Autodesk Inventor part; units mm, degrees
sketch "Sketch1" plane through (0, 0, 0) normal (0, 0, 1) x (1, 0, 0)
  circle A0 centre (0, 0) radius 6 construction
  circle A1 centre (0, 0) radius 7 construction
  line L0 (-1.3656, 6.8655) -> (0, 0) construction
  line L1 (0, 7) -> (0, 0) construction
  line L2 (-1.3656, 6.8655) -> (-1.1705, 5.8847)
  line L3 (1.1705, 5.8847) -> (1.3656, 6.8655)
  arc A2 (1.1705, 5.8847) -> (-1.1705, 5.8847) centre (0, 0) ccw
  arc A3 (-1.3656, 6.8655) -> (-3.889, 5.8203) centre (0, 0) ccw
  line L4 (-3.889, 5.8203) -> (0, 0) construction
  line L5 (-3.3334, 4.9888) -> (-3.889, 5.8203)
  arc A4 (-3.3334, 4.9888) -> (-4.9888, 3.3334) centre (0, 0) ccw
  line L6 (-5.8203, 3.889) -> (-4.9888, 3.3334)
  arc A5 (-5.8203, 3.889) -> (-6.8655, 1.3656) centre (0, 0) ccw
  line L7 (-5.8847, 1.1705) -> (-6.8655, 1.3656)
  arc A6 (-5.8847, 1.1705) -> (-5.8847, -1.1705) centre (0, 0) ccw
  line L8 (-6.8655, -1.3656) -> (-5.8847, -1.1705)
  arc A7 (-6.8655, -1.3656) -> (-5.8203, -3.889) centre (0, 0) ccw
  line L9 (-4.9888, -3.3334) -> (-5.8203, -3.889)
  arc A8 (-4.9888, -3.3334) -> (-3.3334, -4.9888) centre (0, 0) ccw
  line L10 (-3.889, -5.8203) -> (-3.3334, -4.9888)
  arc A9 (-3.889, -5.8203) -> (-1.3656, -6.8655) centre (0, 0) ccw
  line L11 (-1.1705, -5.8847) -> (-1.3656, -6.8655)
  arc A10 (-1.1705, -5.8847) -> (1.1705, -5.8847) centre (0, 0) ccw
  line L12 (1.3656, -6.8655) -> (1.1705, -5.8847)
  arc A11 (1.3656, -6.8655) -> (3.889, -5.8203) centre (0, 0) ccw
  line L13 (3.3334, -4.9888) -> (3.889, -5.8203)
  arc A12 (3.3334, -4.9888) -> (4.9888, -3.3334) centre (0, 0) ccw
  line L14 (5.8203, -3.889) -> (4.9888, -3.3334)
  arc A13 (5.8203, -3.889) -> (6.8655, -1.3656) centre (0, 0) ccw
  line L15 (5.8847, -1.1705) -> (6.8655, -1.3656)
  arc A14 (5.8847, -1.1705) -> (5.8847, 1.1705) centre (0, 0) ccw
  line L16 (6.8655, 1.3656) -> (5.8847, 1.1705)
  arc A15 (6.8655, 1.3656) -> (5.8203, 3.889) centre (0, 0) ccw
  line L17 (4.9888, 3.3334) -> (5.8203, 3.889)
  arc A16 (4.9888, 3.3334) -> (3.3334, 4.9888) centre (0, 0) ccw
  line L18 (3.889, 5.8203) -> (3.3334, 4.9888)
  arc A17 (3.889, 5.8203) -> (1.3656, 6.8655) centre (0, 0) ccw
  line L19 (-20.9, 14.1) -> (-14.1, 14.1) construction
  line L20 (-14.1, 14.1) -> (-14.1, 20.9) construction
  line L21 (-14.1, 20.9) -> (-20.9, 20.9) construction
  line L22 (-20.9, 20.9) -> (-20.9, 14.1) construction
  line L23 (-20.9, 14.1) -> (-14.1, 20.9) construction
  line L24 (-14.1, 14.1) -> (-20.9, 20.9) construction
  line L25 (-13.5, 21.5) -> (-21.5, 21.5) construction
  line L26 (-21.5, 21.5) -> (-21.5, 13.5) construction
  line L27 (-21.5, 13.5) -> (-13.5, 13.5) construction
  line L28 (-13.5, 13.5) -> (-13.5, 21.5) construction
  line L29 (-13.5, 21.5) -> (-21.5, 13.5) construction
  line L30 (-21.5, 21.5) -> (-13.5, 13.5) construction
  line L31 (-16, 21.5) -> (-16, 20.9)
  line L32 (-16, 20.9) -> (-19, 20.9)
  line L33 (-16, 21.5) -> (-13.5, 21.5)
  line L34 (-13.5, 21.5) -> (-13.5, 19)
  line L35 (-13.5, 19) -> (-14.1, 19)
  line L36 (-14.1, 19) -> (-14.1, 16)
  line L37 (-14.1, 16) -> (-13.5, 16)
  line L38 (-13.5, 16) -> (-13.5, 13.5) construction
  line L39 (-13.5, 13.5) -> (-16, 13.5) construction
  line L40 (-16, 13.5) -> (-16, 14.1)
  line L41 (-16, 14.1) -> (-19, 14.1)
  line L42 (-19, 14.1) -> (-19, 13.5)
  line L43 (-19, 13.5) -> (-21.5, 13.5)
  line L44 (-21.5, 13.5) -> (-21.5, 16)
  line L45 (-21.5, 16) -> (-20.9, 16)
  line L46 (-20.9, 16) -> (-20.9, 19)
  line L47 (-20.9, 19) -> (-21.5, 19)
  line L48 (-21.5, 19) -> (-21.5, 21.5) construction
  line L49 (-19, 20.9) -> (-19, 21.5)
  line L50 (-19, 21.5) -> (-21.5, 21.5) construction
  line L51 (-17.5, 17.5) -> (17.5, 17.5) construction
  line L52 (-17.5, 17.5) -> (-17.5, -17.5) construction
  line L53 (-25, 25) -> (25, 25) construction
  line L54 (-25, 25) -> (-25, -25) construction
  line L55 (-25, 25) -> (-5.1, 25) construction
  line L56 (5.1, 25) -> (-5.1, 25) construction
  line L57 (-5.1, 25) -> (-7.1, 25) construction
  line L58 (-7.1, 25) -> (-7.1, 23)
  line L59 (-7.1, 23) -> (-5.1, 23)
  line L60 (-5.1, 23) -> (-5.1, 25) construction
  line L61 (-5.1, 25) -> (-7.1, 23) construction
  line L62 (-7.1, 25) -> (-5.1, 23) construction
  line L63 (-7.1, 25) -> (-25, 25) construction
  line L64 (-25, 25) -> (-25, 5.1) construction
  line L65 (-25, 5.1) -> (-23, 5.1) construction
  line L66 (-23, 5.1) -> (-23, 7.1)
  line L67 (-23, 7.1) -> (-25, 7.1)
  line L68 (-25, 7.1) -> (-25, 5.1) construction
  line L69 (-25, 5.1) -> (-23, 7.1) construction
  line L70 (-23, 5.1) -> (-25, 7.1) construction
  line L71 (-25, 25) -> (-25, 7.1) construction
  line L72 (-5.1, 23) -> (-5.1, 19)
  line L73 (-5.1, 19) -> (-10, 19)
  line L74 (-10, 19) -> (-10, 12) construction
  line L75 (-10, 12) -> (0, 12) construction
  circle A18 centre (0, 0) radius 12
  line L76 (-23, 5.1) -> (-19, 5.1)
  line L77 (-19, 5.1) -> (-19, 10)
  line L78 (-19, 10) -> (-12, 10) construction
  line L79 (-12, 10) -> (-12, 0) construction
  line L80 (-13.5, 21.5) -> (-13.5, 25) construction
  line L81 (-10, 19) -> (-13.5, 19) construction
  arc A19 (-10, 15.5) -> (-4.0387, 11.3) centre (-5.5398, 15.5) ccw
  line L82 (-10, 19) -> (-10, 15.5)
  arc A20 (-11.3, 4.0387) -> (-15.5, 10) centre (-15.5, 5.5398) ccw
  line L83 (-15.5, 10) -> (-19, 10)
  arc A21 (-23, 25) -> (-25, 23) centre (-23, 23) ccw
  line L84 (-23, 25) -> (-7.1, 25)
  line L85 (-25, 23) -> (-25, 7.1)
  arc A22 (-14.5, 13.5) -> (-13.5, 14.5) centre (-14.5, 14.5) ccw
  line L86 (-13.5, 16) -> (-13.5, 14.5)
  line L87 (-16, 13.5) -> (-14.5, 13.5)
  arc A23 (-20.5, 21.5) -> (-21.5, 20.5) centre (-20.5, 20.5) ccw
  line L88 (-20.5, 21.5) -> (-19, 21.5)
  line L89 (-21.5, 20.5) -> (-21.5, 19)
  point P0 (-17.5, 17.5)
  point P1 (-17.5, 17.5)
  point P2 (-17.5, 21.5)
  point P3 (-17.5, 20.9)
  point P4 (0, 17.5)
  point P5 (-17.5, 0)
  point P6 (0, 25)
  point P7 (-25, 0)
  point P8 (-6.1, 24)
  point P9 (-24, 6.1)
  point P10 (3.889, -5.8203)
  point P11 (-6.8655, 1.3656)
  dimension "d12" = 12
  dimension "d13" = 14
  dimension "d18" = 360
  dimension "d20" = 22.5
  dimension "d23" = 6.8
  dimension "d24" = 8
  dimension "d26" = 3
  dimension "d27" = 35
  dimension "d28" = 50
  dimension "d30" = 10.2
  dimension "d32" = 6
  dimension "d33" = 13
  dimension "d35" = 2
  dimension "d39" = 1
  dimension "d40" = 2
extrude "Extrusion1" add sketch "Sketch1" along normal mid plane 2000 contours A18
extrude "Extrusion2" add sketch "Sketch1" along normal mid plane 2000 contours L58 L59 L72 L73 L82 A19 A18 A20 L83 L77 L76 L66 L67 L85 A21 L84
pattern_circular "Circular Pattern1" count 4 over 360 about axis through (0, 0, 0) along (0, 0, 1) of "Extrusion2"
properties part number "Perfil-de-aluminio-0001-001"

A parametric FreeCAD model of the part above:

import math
import FreeCAD as App
import Part
import Sketcher
Q = App.Units.Quantity

doc = App.newDocument("Part")
body = doc.addObject("PartDesign::Body", "Body")

sketch1 = body.newObject("Sketcher::SketchObject", "Sketch")
sketch1.AttachmentSupport = (doc.getObject("XY_Plane"), [""])
sketch1.MapMode = "FlatFace"
sketch1.addGeometry([
    Part.Circle(App.Vector(0, 0, 0), App.Vector(0, 0, 1), 12),
    Part.ArcOfCircle(Part.Circle(App.Vector(0, 0, 0), App.Vector(0, 0, 1), 7.000015), math.radians(101.249736), math.radians(123.749999)),
    Part.LineSegment(App.Vector(-1.3656, 6.8655, 0), App.Vector(-1.1705, 5.8847, 0)),
    Part.ArcOfCircle(Part.Circle(App.Vector(0, 0, 0), App.Vector(0, 0, 1), 5.99998), math.radians(78.750371), math.radians(101.249629)),
    Part.LineSegment(App.Vector(1.1705, 5.8847, 0), App.Vector(1.3656, 6.8655, 0)),
    Part.ArcOfCircle(Part.Circle(App.Vector(0, 0, 0), App.Vector(0, 0, 1), 6.999997), math.radians(56.250001), math.radians(78.750264)),
    Part.LineSegment(App.Vector(3.889, 5.8203, 0), App.Vector(3.3334, 4.9888, 0)),
    Part.ArcOfCircle(Part.Circle(App.Vector(0, 0, 0), App.Vector(0, 0, 1), 5.999973), math.radians(33.749924), math.radians(56.250076)),
    Part.LineSegment(App.Vector(4.9888, 3.3334, 0), App.Vector(5.8203, 3.889, 0)),
    Part.ArcOfCircle(Part.Circle(App.Vector(0, 0, 0), App.Vector(0, 0, 1), 7.000015), math.radians(11.249736), math.radians(33.749999)),
    Part.LineSegment(App.Vector(6.8655, 1.3656, 0), App.Vector(5.8847, 1.1705, 0)),
    Part.ArcOfCircle(Part.Circle(App.Vector(0, 0, 0), App.Vector(0, 0, 1), 5.99998), math.radians(-11.249629), math.radians(11.249629)),
    Part.LineSegment(App.Vector(5.8847, -1.1705, 0), App.Vector(6.8655, -1.3656, 0)),
    Part.ArcOfCircle(Part.Circle(App.Vector(0, 0, 0), App.Vector(0, 0, 1), 6.999997), math.radians(-33.749999), math.radians(-11.249736)),
    Part.LineSegment(App.Vector(5.8203, -3.889, 0), App.Vector(4.9888, -3.3334, 0)),
    Part.ArcOfCircle(Part.Circle(App.Vector(0, 0, 0), App.Vector(0, 0, 1), 5.999973), math.radians(-56.250076), math.radians(-33.749924)),
    Part.LineSegment(App.Vector(3.3334, -4.9888, 0), App.Vector(3.889, -5.8203, 0)),
    Part.ArcOfCircle(Part.Circle(App.Vector(0, 0, 0), App.Vector(0, 0, 1), 7.000015), math.radians(-78.750264), math.radians(-56.250001)),
    Part.LineSegment(App.Vector(1.3656, -6.8655, 0), App.Vector(1.1705, -5.8847, 0)),
    Part.ArcOfCircle(Part.Circle(App.Vector(0, 0, 0), App.Vector(0, 0, 1), 5.99998), math.radians(-101.249629), math.radians(-78.750371)),
    Part.LineSegment(App.Vector(-1.1705, -5.8847, 0), App.Vector(-1.3656, -6.8655, 0)),
    Part.ArcOfCircle(Part.Circle(App.Vector(0, 0, 0), App.Vector(0, 0, 1), 6.999997), math.radians(-123.749999), math.radians(-101.249736)),
    Part.LineSegment(App.Vector(-3.889, -5.8203, 0), App.Vector(-3.3334, -4.9888, 0)),
    Part.ArcOfCircle(Part.Circle(App.Vector(0, 0, 0), App.Vector(0, 0, 1), 5.999973), math.radians(-146.250076), math.radians(-123.749924)),
    Part.LineSegment(App.Vector(-4.9888, -3.3334, 0), App.Vector(-5.8203, -3.889, 0)),
    Part.ArcOfCircle(Part.Circle(App.Vector(0, 0, 0), App.Vector(0, 0, 1), 7.000015), math.radians(-168.750264), math.radians(-146.250001)),
    Part.LineSegment(App.Vector(-6.8655, -1.3656, 0), App.Vector(-5.8847, -1.1705, 0)),
    Part.ArcOfCircle(Part.Circle(App.Vector(0, 0, 0), App.Vector(0, 0, 1), 5.99998), math.radians(168.750371), math.radians(191.249629)),
    Part.LineSegment(App.Vector(-5.8847, 1.1705, 0), App.Vector(-6.8655, 1.3656, 0)),
    Part.ArcOfCircle(Part.Circle(App.Vector(0, 0, 0), App.Vector(0, 0, 1), 6.999997), math.radians(146.250001), math.radians(168.750264)),
    Part.LineSegment(App.Vector(-5.8203, 3.889, 0), App.Vector(-4.9888, 3.3334, 0)),
    Part.ArcOfCircle(Part.Circle(App.Vector(0, 0, 0), App.Vector(0, 0, 1), 5.999973), math.radians(123.749924), math.radians(146.250076)),
    Part.LineSegment(App.Vector(-3.3334, 4.9888, 0), App.Vector(-3.889, 5.8203, 0)),
], False)
sketch1.addConstraint([
    Sketcher.Constraint("Coincident", 1, 1, 2, 1),
    Sketcher.Constraint("Coincident", 2, 2, 3, 2),
    Sketcher.Constraint("Coincident", 3, 1, 4, 1),
    Sketcher.Constraint("Coincident", 4, 2, 5, 2),
    Sketcher.Constraint("Coincident", 5, 1, 6, 1),
    Sketcher.Constraint("Coincident", 6, 2, 7, 2),
    Sketcher.Constraint("Coincident", 7, 1, 8, 1),
    Sketcher.Constraint("Coincident", 8, 2, 9, 2),
    Sketcher.Constraint("Coincident", 9, 1, 10, 1),
    Sketcher.Constraint("Coincident", 10, 2, 11, 2),
    Sketcher.Constraint("Coincident", 11, 1, 12, 1),
    Sketcher.Constraint("Coincident", 12, 2, 13, 2),
    Sketcher.Constraint("Coincident", 13, 1, 14, 1),
    Sketcher.Constraint("Coincident", 14, 2, 15, 2),
    Sketcher.Constraint("Coincident", 15, 1, 16, 1),
    Sketcher.Constraint("Coincident", 16, 2, 17, 2),
    Sketcher.Constraint("Coincident", 17, 1, 18, 1),
    Sketcher.Constraint("Coincident", 18, 2, 19, 2),
    Sketcher.Constraint("Coincident", 19, 1, 20, 1),
    Sketcher.Constraint("Coincident", 20, 2, 21, 2),
    Sketcher.Constraint("Coincident", 21, 1, 22, 1),
    Sketcher.Constraint("Coincident", 22, 2, 23, 2),
    Sketcher.Constraint("Coincident", 23, 1, 24, 1),
    Sketcher.Constraint("Coincident", 24, 2, 25, 2),
    Sketcher.Constraint("Coincident", 25, 1, 26, 1),
    Sketcher.Constraint("Coincident", 26, 2, 27, 2),
    Sketcher.Constraint("Coincident", 27, 1, 28, 1),
    Sketcher.Constraint("Coincident", 28, 2, 29, 2),
    Sketcher.Constraint("Coincident", 29, 1, 30, 1),
    Sketcher.Constraint("Coincident", 30, 2, 31, 2),
    Sketcher.Constraint("Coincident", 31, 1, 32, 1),
    Sketcher.Constraint("Coincident", 32, 2, 1, 2),
    Sketcher.Constraint("Coincident", 0, 3, -1, 1),
    Sketcher.Constraint("Coincident", 1, 3, -1, 1),
    Sketcher.Constraint("Coincident", 3, 3, -1, 1),
    Sketcher.Constraint("Coincident", 5, 3, -1, 1),
    Sketcher.Constraint("Coincident", 7, 3, -1, 1),
    Sketcher.Constraint("Coincident", 9, 3, -1, 1),
    Sketcher.Constraint("Coincident", 11, 3, -1, 1),
    Sketcher.Constraint("Coincident", 13, 3, -1, 1),
    Sketcher.Constraint("Coincident", 15, 3, -1, 1),
    Sketcher.Constraint("Coincident", 17, 3, -1, 1),
    Sketcher.Constraint("Coincident", 19, 3, -1, 1),
    Sketcher.Constraint("Coincident", 21, 3, -1, 1),
    Sketcher.Constraint("Coincident", 23, 3, -1, 1),
    Sketcher.Constraint("Coincident", 25, 3, -1, 1),
    Sketcher.Constraint("Coincident", 27, 3, -1, 1),
    Sketcher.Constraint("Coincident", 29, 3, -1, 1),
    Sketcher.Constraint("Coincident", 31, 3, -1, 1),
    Sketcher.Constraint("Equal", 1, 5),
    Sketcher.Constraint("Equal", 3, 7),
    Sketcher.Constraint("Equal", 5, 9),
    Sketcher.Constraint("Equal", 7, 11),
    Sketcher.Constraint("Equal", 9, 13),
    Sketcher.Constraint("Equal", 11, 15),
    Sketcher.Constraint("Equal", 13, 17),
    Sketcher.Constraint("Equal", 15, 19),
    Sketcher.Constraint("Equal", 17, 21),
    Sketcher.Constraint("Equal", 19, 23),
    Sketcher.Constraint("Equal", 21, 25),
    Sketcher.Constraint("Equal", 23, 27),
    Sketcher.Constraint("Equal", 25, 29),
    Sketcher.Constraint("Equal", 27, 31),
    Sketcher.Constraint("Perpendicular", 2, 10),
    Sketcher.Constraint("Perpendicular", 4, 12),
    Sketcher.Constraint("Perpendicular", 6, 14),
    Sketcher.Constraint("Perpendicular", 8, 16),
    Sketcher.Constraint("Perpendicular", 10, 18),
    Sketcher.Constraint("Perpendicular", 12, 20),
    Sketcher.Constraint("Perpendicular", 14, 22),
    Sketcher.Constraint("Perpendicular", 16, 24),
    Sketcher.Constraint("Perpendicular", 18, 26),
    Sketcher.Constraint("Perpendicular", 20, 28),
    Sketcher.Constraint("Perpendicular", 22, 30),
    Sketcher.Constraint("Perpendicular", 24, 32),
    Sketcher.Constraint("Horizontal", 2, 2, 3, 1),
    Sketcher.Constraint("Horizontal", 1, 1, 4, 2),
    Sketcher.Constraint("Horizontal", 18, 2, 19, 1),
    Sketcher.Constraint("Horizontal", 16, 2, 21, 1),
    Sketcher.Constraint("Horizontal", 15, 1, 22, 2),
    Sketcher.Constraint("Horizontal", 14, 2, 23, 1),
    Sketcher.Constraint("Horizontal", 12, 2, 25, 1),
    Sketcher.Constraint("Horizontal", 10, 2, 27, 1),
    Sketcher.Constraint("Horizontal", 8, 2, 29, 1),
    Sketcher.Constraint("Horizontal", 6, 2, 31, 1),
    Sketcher.Constraint("Vertical", 10, 2, 11, 1),
    Sketcher.Constraint("Vertical", 8, 2, 13, 1),
    Sketcher.Constraint("Vertical", 6, 2, 15, 1),
    Sketcher.Constraint("Vertical", 4, 2, 17, 1),
    Sketcher.Constraint("Diameter", 0, 24.0),
    Sketcher.Constraint("Radius", 1, 7.0),
    Sketcher.Constraint("Radius", 3, 6.0),
    Sketcher.Constraint("Angle", 2, Q("-78.7496 deg")),
    Sketcher.Constraint("Angle", 6, Q("-123.7505 deg")),
    Sketcher.Constraint("DistanceX", -1, 1, 5, 1, 3.889),
    Sketcher.Constraint("DistanceY", -1, 1, 8, 2, 3.889),
    Sketcher.Constraint("DistanceX", 2, 2, 3, 1, 2.341),
    Sketcher.Constraint("DistanceX", 6, 2, 9, 1, 3.532),
])
pad1 = body.newObject("PartDesign::Pad", "Pad")
pad1.Profile = sketch1
pad1.Length = 2000
pad1.Midplane = True

sketch2 = body.newObject("Sketcher::SketchObject", "Sketch001")
sketch2.AttachmentSupport = (doc.getObject("XY_Plane"), [""])
sketch2.MapMode = "FlatFace"
sketch2.addGeometry([
    Part.LineSegment(App.Vector(-7.1, 23, 0), App.Vector(-7.1, 25, 0)),
    Part.LineSegment(App.Vector(-7.1, 25, 0), App.Vector(-23, 25, 0)),
    Part.ArcOfCircle(Part.Circle(App.Vector(-23, 23, 0), App.Vector(0, 0, 1), 2), math.radians(90), math.radians(180)),
    Part.LineSegment(App.Vector(-25, 23, 0), App.Vector(-25, 7.1, 0)),
    Part.LineSegment(App.Vector(-25, 7.1, 0), App.Vector(-23, 7.1, 0)),
    Part.LineSegment(App.Vector(-23, 7.1, 0), App.Vector(-23, 5.1, 0)),
    Part.LineSegment(App.Vector(-23, 5.1, 0), App.Vector(-19, 5.1, 0)),
    Part.LineSegment(App.Vector(-19, 5.1, 0), App.Vector(-19, 10, 0)),
    Part.LineSegment(App.Vector(-19, 10, 0), App.Vector(-15.5, 10, 0)),
    Part.ArcOfCircle(Part.Circle(App.Vector(-15.5, 5.5398, 0), App.Vector(0, 0, 1), 4.460191), math.radians(-19.667131), math.radians(90)),
    Part.ArcOfCircle(Part.Circle(App.Vector(0, 0, 0), App.Vector(0, 0, 1), 12), math.radians(109.667249), math.radians(160.332751)),
    Part.ArcOfCircle(Part.Circle(App.Vector(-5.5398, 15.5, 0), App.Vector(0, 0, 1), 4.4602), math.radians(180), math.radians(289.667131)),
    Part.LineSegment(App.Vector(-10, 15.5, 0), App.Vector(-10, 19, 0)),
    Part.LineSegment(App.Vector(-10, 19, 0), App.Vector(-5.1, 19, 0)),
    Part.LineSegment(App.Vector(-5.1, 19, 0), App.Vector(-5.1, 23, 0)),
    Part.LineSegment(App.Vector(-5.1, 23, 0), App.Vector(-7.1, 23, 0)),
    Part.LineSegment(App.Vector(-16, 20.9, 0), App.Vector(-16, 21.5, 0)),
    Part.LineSegment(App.Vector(-16, 21.5, 0), App.Vector(-13.5, 21.5, 0)),
    Part.LineSegment(App.Vector(-13.5, 21.5, 0), App.Vector(-13.5, 19, 0)),
    Part.LineSegment(App.Vector(-13.5, 19, 0), App.Vector(-14.1, 19, 0)),
    Part.LineSegment(App.Vector(-14.1, 19, 0), App.Vector(-14.1, 16, 0)),
    Part.LineSegment(App.Vector(-14.1, 16, 0), App.Vector(-13.5, 16, 0)),
    Part.LineSegment(App.Vector(-13.5, 16, 0), App.Vector(-13.5, 14.5, 0)),
    Part.ArcOfCircle(Part.Circle(App.Vector(-14.5, 14.5, 0), App.Vector(0, 0, 1), 1), math.radians(-90), math.radians(0)),
    Part.LineSegment(App.Vector(-14.5, 13.5, 0), App.Vector(-16, 13.5, 0)),
    Part.LineSegment(App.Vector(-16, 13.5, 0), App.Vector(-16, 14.1, 0)),
    Part.LineSegment(App.Vector(-16, 14.1, 0), App.Vector(-19, 14.1, 0)),
    Part.LineSegment(App.Vector(-19, 14.1, 0), App.Vector(-19, 13.5, 0)),
    Part.LineSegment(App.Vector(-19, 13.5, 0), App.Vector(-21.5, 13.5, 0)),
    Part.LineSegment(App.Vector(-21.5, 13.5, 0), App.Vector(-21.5, 16, 0)),
    Part.LineSegment(App.Vector(-21.5, 16, 0), App.Vector(-20.9, 16, 0)),
    Part.LineSegment(App.Vector(-20.9, 16, 0), App.Vector(-20.9, 19, 0)),
    Part.LineSegment(App.Vector(-20.9, 19, 0), App.Vector(-21.5, 19, 0)),
    Part.LineSegment(App.Vector(-21.5, 19, 0), App.Vector(-21.5, 20.5, 0)),
    Part.ArcOfCircle(Part.Circle(App.Vector(-20.5, 20.5, 0), App.Vector(0, 0, 1), 1), math.radians(90), math.radians(180)),
    Part.LineSegment(App.Vector(-20.5, 21.5, 0), App.Vector(-19, 21.5, 0)),
    Part.LineSegment(App.Vector(-19, 21.5, 0), App.Vector(-19, 20.9, 0)),
    Part.LineSegment(App.Vector(-19, 20.9, 0), App.Vector(-16, 20.9, 0)),
], False)
sketch2.addConstraint([
    Sketcher.Constraint("Coincident", 0, 2, 1, 1),
    Sketcher.Constraint("Tangent", 1, 2, 2, 1),
    Sketcher.Constraint("Tangent", 2, 2, 3, 1),
    Sketcher.Constraint("Coincident", 3, 2, 4, 1),
    Sketcher.Constraint("Coincident", 4, 2, 5, 1),
    Sketcher.Constraint("Coincident", 5, 2, 6, 1),
    Sketcher.Constraint("Coincident", 6, 2, 7, 1),
    Sketcher.Constraint("Coincident", 7, 2, 8, 1),
    Sketcher.Constraint("Tangent", 8, 2, 9, 2),
    Sketcher.Constraint("Tangent", 9, 1, 10, 2),
    Sketcher.Constraint("Tangent", 10, 1, 11, 2),
    Sketcher.Constraint("Tangent", 11, 1, 12, 1),
    Sketcher.Constraint("Coincident", 12, 2, 13, 1),
    Sketcher.Constraint("Coincident", 13, 2, 14, 1),
    Sketcher.Constraint("Coincident", 14, 2, 15, 1),
    Sketcher.Constraint("Coincident", 15, 2, 0, 1),
    Sketcher.Constraint("Coincident", 16, 2, 17, 1),
    Sketcher.Constraint("Coincident", 17, 2, 18, 1),
    Sketcher.Constraint("Coincident", 18, 2, 19, 1),
    Sketcher.Constraint("Coincident", 19, 2, 20, 1),
    Sketcher.Constraint("Coincident", 20, 2, 21, 1),
    Sketcher.Constraint("Coincident", 21, 2, 22, 1),
    Sketcher.Constraint("Tangent", 22, 2, 23, 2),
    Sketcher.Constraint("Tangent", 23, 1, 24, 1),
    Sketcher.Constraint("Coincident", 24, 2, 25, 1),
    Sketcher.Constraint("Coincident", 25, 2, 26, 1),
    Sketcher.Constraint("Coincident", 26, 2, 27, 1),
    Sketcher.Constraint("Coincident", 27, 2, 28, 1),
    Sketcher.Constraint("Coincident", 28, 2, 29, 1),
    Sketcher.Constraint("Coincident", 29, 2, 30, 1),
    Sketcher.Constraint("Coincident", 30, 2, 31, 1),
    Sketcher.Constraint("Coincident", 31, 2, 32, 1),
    Sketcher.Constraint("Coincident", 32, 2, 33, 1),
    Sketcher.Constraint("Tangent", 33, 2, 34, 2),
    Sketcher.Constraint("Tangent", 34, 1, 35, 1),
    Sketcher.Constraint("Coincident", 35, 2, 36, 1),
    Sketcher.Constraint("Coincident", 36, 2, 37, 1),
    Sketcher.Constraint("Coincident", 37, 2, 16, 1),
    Sketcher.Constraint("Vertical", 0),
    Sketcher.Constraint("Horizontal", 1),
    Sketcher.Constraint("Vertical", 3),
    Sketcher.Constraint("Horizontal", 4),
    Sketcher.Constraint("Vertical", 5),
    Sketcher.Constraint("Horizontal", 6),
    Sketcher.Constraint("Vertical", 7),
    Sketcher.Constraint("Horizontal", 8),
    Sketcher.Constraint("Vertical", 12),
    Sketcher.Constraint("Horizontal", 13),
    Sketcher.Constraint("Vertical", 14),
    Sketcher.Constraint("Horizontal", 15),
    Sketcher.Constraint("Vertical", 16),
    Sketcher.Constraint("Horizontal", 17),
    Sketcher.Constraint("Vertical", 18),
    Sketcher.Constraint("Horizontal", 19),
    Sketcher.Constraint("Vertical", 20),
    Sketcher.Constraint("Horizontal", 21),
    Sketcher.Constraint("Vertical", 22),
    Sketcher.Constraint("Horizontal", 24),
    Sketcher.Constraint("Vertical", 25),
    Sketcher.Constraint("Horizontal", 26),
    Sketcher.Constraint("Vertical", 27),
    Sketcher.Constraint("Horizontal", 28),
    Sketcher.Constraint("Vertical", 29),
    Sketcher.Constraint("Horizontal", 30),
    Sketcher.Constraint("Vertical", 31),
    Sketcher.Constraint("Horizontal", 32),
    Sketcher.Constraint("Vertical", 33),
    Sketcher.Constraint("Horizontal", 35),
    Sketcher.Constraint("Vertical", 36),
    Sketcher.Constraint("Horizontal", 37),
    Sketcher.Constraint("Coincident", 10, 3, -1, 1),
    Sketcher.Constraint("Equal", 9, 11),
    Sketcher.Constraint("Equal", 23, 34),
    Sketcher.Constraint("Horizontal", 2, 2, 14, 2),
    Sketcher.Constraint("Horizontal", 13, 2, 18, 2),
    Sketcher.Constraint("Horizontal", 24, 2, 27, 2),
    Sketcher.Constraint("Horizontal", 21, 2, 29, 2),
    Sketcher.Constraint("Horizontal", 19, 2, 31, 2),
    Sketcher.Constraint("Horizontal", 17, 2, 34, 1),
    Sketcher.Constraint("Vertical", 1, 2, 4, 2),
    Sketcher.Constraint("Vertical", 18, 2, 21, 2),
    Sketcher.Constraint("Vertical", 16, 2, 24, 2),
    Sketcher.Constraint("Vertical", 7, 2, 26, 2),
    Sketcher.Constraint("Vertical", 29, 2, 32, 2),
    Sketcher.Constraint("Vertical", 27, 2, 35, 2),
    Sketcher.Constraint("Equal", 4, 15),
    Sketcher.Constraint("Equal", 17, 28),
    Sketcher.Constraint("Equal", 21, 30),
    Sketcher.Constraint("Equal", 1, 3),
    Sketcher.Constraint("Equal", 0, 5),
    Sketcher.Constraint("Equal", 13, 7),
    Sketcher.Constraint("Equal", 8, 12),
    Sketcher.Constraint("Equal", 6, 14),
    Sketcher.Constraint("Equal", 32, 16),
    Sketcher.Constraint("Equal", 28, 18),
    Sketcher.Constraint("Equal", 37, 20),
    Sketcher.Constraint("Equal", 35, 22),
    Sketcher.Constraint("Equal", 16, 25),
    Sketcher.Constraint("Radius", 2, 2.0),
    Sketcher.Constraint("Radius", 10, 12.0),
    Sketcher.Constraint("Radius", 23, 1.0),
    Sketcher.Constraint("DistanceX", 26, 2, 26, 1, 3.0),
    Sketcher.Constraint("DistanceX", 9, 3, 23, 3, 1.0),
    Sketcher.Constraint("DistanceX", 34, 3, 23, 3, 6.0),
    Sketcher.Constraint("DistanceX", 3, 2, 6, 2, 6.0),
    Sketcher.Constraint("DistanceX", 16, 2, 12, 2, 6.0),
    Sketcher.Constraint("DistanceX", 1, 2, 1, 1, 15.9),
    Sketcher.Constraint("DistanceX", 19, 2, 19, 1, 0.6),
    Sketcher.Constraint("DistanceX", 2, 3, -1, 1, 23.0),
])
pad2 = body.newObject("PartDesign::Pad", "Pad001")
pad2.Profile = sketch2
pad2.Length = 2000
pad2.Midplane = True
doc.recompute()

polarpattern = body.newObject("PartDesign::PolarPattern", "PolarPattern")
polarpattern.Originals = [pad2]
polarpattern.Axis = (doc.getObject("Z_Axis"), [""])
polarpattern.Angle = 360
polarpattern.Occurrences = 4
body.Tip = polarpattern

doc.recompute()
